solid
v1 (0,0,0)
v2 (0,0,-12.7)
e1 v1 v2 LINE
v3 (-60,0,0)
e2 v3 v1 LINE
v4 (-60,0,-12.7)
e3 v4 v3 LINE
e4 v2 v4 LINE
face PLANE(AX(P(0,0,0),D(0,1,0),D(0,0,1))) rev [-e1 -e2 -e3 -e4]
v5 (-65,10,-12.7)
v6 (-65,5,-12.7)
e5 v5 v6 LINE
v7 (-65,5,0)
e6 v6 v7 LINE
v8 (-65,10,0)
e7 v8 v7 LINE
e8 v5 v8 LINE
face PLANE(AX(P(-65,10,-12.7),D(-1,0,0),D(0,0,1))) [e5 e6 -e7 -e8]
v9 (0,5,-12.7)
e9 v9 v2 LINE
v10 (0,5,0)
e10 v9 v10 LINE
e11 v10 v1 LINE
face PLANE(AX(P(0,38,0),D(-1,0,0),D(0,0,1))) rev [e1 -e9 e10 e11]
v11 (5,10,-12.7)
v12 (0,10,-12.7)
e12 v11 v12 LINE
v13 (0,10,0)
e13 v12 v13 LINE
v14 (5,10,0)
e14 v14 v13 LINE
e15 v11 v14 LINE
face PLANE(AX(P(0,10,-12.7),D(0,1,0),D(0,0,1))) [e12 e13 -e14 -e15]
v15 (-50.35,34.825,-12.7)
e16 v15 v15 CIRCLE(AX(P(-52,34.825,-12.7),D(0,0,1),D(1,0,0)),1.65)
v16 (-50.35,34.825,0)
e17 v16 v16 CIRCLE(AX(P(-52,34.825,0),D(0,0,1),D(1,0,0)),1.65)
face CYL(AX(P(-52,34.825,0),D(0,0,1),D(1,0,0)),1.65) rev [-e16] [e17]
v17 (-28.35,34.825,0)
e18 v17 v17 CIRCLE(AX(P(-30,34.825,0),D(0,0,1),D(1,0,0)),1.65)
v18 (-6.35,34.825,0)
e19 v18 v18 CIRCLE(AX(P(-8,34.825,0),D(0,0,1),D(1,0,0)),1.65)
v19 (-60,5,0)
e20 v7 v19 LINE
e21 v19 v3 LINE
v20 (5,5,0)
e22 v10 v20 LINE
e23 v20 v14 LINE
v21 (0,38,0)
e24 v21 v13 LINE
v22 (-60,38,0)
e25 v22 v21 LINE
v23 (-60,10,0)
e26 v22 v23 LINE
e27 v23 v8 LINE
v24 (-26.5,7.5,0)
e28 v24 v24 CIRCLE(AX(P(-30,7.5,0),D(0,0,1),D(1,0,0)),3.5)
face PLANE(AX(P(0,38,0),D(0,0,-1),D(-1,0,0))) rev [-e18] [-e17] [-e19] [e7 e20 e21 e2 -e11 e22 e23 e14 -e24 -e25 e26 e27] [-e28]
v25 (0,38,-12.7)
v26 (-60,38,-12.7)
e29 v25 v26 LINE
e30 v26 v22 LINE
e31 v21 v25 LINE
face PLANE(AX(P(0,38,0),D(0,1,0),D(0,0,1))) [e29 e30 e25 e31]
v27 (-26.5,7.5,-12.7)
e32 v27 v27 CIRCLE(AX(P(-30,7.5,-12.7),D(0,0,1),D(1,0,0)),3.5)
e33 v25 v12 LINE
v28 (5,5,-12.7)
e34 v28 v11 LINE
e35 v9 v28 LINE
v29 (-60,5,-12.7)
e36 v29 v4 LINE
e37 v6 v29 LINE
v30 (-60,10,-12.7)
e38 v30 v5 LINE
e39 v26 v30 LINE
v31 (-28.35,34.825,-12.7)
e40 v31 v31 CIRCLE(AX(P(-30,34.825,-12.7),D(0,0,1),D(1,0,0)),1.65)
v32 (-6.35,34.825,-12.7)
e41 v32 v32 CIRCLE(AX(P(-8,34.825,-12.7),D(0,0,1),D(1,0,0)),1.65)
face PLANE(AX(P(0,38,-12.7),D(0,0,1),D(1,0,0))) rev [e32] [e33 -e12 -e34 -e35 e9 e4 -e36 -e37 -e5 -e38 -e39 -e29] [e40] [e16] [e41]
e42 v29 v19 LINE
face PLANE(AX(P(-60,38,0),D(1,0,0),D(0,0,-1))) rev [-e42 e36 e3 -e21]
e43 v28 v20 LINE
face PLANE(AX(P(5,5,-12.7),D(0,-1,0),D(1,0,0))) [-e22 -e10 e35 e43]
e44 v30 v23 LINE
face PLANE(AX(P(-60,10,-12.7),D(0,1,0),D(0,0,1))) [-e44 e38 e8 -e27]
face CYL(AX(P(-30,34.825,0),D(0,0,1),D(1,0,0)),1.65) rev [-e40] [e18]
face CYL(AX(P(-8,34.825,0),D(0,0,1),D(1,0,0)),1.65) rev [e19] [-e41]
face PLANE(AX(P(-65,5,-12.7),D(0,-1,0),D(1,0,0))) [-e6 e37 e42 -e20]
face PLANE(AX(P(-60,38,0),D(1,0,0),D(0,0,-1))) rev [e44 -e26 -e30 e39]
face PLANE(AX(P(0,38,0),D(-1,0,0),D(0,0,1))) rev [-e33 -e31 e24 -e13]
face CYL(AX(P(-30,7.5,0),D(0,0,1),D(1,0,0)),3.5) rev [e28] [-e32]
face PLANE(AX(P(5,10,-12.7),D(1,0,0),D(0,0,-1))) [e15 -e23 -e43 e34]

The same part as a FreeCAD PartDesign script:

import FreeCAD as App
import Part
import Sketcher
from FreeCAD import Vector


def add_polygon(sketch, points):
    """Adds a closed chain of lines whose ends are joined by coincident constraints."""
    first, n = sketch.GeometryCount, len(points)
    for a, b in zip(points, points[1:] + points[:1]):
        sketch.addGeometry(Part.LineSegment(App.Vector(*a, 0), App.Vector(*b, 0)), False)
    for i in range(n):
        sketch.addConstraint(Sketcher.Constraint("Coincident", first + i, 2, first + (i + 1) % n, 1))

doc = App.newDocument("Part")
body = doc.addObject("PartDesign::Body", "Body")

# Sketch on XZ plane
sketch1 = body.newObject("Sketcher::SketchObject", "Sketch")
sketch1.AttachmentSupport = (doc.getObject("XZ_Plane"), [""])
sketch1.MapMode = "FlatFace"
add_polygon(sketch1, [(-60, -13), (-60, 0), (0, 0), (0, -13)])  # lines 0-3
sketch1.addConstraint([
    Sketcher.Constraint("Vertical", 0),
    Sketcher.Constraint("Horizontal", 1),
    Sketcher.Constraint("Vertical", 2),
    Sketcher.Constraint("Horizontal", 3),
    Sketcher.Constraint("Coincident", 1, 2, -1, 1),
    Sketcher.Constraint("DistanceX", 1, 1, 1, 2, 60.0),
    Sketcher.Constraint("DistanceY", 0, 1, 0, 2, 12.7),
])
pad1 = body.newObject("PartDesign::Pad", "Pad")
pad1.Profile = sketch1
pad1.Length = 38
pad1.Reversed = True

# Sketch on XY plane
sketch2 = body.newObject("Sketcher::SketchObject", "Sketch001")
sketch2.AttachmentSupport = (doc.getObject("XY_Plane"), [""])
sketch2.MapMode = "FlatFace"
sketch2.addGeometry(Part.Circle(Vector(-30, 7.5, 0), Vector(0, 0, 1), 3.5), False)
sketch2.addConstraint([
    Sketcher.Constraint("Diameter", 0, 7.0),
    Sketcher.Constraint("DistanceX", 0, 3, -1, 1, 30.0),
    Sketcher.Constraint("DistanceY", -1, 1, 0, 3, 7.5),
])
doc.recompute()
hole = body.newObject("PartDesign::Hole", "Hole")
hole.Profile = sketch2
hole.ThreadType = "None"
hole.Diameter = 7
hole.DepthType = "Dimension"
hole.Depth = 19.05
hole.DrillPoint = "Angled"
hole.DrillPointAngle = 118

# Sketch on XY plane
sketch3 = body.newObject("Sketcher::SketchObject", "Sketch002")
sketch3.AttachmentSupport = (doc.getObject("XY_Plane"), [""])
sketch3.MapMode = "FlatFace"
add_polygon(sketch3, [(-60, 10), (-65, 10), (-65, 5), (-60, 5)])  # lines 0-3
add_polygon(sketch3, [(0, 5), (5, 5), (5, 10), (0, 10)])  # lines 4-7
sketch3.addConstraint([
    Sketcher.Constraint("Horizontal", 0),
    Sketcher.Constraint("Vertical", 1),
    Sketcher.Constraint("Horizontal", 2),
    Sketcher.Constraint("Vertical", 3),
    Sketcher.Constraint("Horizontal", 4),
    Sketcher.Constraint("Vertical", 5),
    Sketcher.Constraint("Horizontal", 6),
    Sketcher.Constraint("Vertical", 7),
    Sketcher.Constraint("PointOnObject", 6, 2, -2),
    Sketcher.Constraint("Horizontal", 2, 2, 4, 2),
    Sketcher.Constraint("Horizontal", 3, 2, 5, 2),
    Sketcher.Constraint("Equal", 2, 4),
    Sketcher.Constraint("Equal", 6, 1),
    Sketcher.Constraint("DistanceX", 0, 2, 0, 1, 5.0),
    Sketcher.Constraint("DistanceX", 0, 2, -1, 1, 65.0),
    Sketcher.Constraint("DistanceY", -1, 1, 0, 2, 10.0),
])
pad2 = body.newObject("PartDesign::Pad", "Pad001")
pad2.Profile = sketch3
pad2.Length = 12.7
pad2.Reversed = True

# Sketch on XY plane
sketch4 = body.newObject("Sketcher::SketchObject", "Sketch003")
sketch4.AttachmentSupport = (doc.getObject("XY_Plane"), [""])
sketch4.MapMode = "FlatFace"
sketch4.addGeometry([
    Part.Circle(Vector(-52, 34.8, 0), Vector(0, 0, 1), 1.6),
    Part.Circle(Vector(-30, 34.8, 0), Vector(0, 0, 1), 1.6),
    Part.Circle(Vector(-8, 34.8, 0), Vector(0, 0, 1), 1.6),
], False)
sketch4.addConstraint([
    Sketcher.Constraint("Equal", 0, 1),
    Sketcher.Constraint("Equal", 1, 2),
    Sketcher.Constraint("Horizontal", 0, 3, 1, 3),
    Sketcher.Constraint("Horizontal", 1, 3, 2, 3),
    Sketcher.Constraint("Diameter", 0, 3.3),
    Sketcher.Constraint("DistanceX", 0, 3, -1, 1, 52.0),
    Sketcher.Constraint("DistanceX", 1, 3, -1, 1, 30.0),
    Sketcher.Constraint("DistanceX", 2, 3, -1, 1, 8.0),
    Sketcher.Constraint("DistanceY", -1, 1, 0, 3, 34.825),
])
doc.recompute()
hole2 = body.newObject("PartDesign::Hole", "Hole001")
hole2.Profile = sketch4
hole2.ThreadType = "None"
hole2.Diameter = 3.3
hole2.DepthType = "ThroughAll"

doc.recompute()
